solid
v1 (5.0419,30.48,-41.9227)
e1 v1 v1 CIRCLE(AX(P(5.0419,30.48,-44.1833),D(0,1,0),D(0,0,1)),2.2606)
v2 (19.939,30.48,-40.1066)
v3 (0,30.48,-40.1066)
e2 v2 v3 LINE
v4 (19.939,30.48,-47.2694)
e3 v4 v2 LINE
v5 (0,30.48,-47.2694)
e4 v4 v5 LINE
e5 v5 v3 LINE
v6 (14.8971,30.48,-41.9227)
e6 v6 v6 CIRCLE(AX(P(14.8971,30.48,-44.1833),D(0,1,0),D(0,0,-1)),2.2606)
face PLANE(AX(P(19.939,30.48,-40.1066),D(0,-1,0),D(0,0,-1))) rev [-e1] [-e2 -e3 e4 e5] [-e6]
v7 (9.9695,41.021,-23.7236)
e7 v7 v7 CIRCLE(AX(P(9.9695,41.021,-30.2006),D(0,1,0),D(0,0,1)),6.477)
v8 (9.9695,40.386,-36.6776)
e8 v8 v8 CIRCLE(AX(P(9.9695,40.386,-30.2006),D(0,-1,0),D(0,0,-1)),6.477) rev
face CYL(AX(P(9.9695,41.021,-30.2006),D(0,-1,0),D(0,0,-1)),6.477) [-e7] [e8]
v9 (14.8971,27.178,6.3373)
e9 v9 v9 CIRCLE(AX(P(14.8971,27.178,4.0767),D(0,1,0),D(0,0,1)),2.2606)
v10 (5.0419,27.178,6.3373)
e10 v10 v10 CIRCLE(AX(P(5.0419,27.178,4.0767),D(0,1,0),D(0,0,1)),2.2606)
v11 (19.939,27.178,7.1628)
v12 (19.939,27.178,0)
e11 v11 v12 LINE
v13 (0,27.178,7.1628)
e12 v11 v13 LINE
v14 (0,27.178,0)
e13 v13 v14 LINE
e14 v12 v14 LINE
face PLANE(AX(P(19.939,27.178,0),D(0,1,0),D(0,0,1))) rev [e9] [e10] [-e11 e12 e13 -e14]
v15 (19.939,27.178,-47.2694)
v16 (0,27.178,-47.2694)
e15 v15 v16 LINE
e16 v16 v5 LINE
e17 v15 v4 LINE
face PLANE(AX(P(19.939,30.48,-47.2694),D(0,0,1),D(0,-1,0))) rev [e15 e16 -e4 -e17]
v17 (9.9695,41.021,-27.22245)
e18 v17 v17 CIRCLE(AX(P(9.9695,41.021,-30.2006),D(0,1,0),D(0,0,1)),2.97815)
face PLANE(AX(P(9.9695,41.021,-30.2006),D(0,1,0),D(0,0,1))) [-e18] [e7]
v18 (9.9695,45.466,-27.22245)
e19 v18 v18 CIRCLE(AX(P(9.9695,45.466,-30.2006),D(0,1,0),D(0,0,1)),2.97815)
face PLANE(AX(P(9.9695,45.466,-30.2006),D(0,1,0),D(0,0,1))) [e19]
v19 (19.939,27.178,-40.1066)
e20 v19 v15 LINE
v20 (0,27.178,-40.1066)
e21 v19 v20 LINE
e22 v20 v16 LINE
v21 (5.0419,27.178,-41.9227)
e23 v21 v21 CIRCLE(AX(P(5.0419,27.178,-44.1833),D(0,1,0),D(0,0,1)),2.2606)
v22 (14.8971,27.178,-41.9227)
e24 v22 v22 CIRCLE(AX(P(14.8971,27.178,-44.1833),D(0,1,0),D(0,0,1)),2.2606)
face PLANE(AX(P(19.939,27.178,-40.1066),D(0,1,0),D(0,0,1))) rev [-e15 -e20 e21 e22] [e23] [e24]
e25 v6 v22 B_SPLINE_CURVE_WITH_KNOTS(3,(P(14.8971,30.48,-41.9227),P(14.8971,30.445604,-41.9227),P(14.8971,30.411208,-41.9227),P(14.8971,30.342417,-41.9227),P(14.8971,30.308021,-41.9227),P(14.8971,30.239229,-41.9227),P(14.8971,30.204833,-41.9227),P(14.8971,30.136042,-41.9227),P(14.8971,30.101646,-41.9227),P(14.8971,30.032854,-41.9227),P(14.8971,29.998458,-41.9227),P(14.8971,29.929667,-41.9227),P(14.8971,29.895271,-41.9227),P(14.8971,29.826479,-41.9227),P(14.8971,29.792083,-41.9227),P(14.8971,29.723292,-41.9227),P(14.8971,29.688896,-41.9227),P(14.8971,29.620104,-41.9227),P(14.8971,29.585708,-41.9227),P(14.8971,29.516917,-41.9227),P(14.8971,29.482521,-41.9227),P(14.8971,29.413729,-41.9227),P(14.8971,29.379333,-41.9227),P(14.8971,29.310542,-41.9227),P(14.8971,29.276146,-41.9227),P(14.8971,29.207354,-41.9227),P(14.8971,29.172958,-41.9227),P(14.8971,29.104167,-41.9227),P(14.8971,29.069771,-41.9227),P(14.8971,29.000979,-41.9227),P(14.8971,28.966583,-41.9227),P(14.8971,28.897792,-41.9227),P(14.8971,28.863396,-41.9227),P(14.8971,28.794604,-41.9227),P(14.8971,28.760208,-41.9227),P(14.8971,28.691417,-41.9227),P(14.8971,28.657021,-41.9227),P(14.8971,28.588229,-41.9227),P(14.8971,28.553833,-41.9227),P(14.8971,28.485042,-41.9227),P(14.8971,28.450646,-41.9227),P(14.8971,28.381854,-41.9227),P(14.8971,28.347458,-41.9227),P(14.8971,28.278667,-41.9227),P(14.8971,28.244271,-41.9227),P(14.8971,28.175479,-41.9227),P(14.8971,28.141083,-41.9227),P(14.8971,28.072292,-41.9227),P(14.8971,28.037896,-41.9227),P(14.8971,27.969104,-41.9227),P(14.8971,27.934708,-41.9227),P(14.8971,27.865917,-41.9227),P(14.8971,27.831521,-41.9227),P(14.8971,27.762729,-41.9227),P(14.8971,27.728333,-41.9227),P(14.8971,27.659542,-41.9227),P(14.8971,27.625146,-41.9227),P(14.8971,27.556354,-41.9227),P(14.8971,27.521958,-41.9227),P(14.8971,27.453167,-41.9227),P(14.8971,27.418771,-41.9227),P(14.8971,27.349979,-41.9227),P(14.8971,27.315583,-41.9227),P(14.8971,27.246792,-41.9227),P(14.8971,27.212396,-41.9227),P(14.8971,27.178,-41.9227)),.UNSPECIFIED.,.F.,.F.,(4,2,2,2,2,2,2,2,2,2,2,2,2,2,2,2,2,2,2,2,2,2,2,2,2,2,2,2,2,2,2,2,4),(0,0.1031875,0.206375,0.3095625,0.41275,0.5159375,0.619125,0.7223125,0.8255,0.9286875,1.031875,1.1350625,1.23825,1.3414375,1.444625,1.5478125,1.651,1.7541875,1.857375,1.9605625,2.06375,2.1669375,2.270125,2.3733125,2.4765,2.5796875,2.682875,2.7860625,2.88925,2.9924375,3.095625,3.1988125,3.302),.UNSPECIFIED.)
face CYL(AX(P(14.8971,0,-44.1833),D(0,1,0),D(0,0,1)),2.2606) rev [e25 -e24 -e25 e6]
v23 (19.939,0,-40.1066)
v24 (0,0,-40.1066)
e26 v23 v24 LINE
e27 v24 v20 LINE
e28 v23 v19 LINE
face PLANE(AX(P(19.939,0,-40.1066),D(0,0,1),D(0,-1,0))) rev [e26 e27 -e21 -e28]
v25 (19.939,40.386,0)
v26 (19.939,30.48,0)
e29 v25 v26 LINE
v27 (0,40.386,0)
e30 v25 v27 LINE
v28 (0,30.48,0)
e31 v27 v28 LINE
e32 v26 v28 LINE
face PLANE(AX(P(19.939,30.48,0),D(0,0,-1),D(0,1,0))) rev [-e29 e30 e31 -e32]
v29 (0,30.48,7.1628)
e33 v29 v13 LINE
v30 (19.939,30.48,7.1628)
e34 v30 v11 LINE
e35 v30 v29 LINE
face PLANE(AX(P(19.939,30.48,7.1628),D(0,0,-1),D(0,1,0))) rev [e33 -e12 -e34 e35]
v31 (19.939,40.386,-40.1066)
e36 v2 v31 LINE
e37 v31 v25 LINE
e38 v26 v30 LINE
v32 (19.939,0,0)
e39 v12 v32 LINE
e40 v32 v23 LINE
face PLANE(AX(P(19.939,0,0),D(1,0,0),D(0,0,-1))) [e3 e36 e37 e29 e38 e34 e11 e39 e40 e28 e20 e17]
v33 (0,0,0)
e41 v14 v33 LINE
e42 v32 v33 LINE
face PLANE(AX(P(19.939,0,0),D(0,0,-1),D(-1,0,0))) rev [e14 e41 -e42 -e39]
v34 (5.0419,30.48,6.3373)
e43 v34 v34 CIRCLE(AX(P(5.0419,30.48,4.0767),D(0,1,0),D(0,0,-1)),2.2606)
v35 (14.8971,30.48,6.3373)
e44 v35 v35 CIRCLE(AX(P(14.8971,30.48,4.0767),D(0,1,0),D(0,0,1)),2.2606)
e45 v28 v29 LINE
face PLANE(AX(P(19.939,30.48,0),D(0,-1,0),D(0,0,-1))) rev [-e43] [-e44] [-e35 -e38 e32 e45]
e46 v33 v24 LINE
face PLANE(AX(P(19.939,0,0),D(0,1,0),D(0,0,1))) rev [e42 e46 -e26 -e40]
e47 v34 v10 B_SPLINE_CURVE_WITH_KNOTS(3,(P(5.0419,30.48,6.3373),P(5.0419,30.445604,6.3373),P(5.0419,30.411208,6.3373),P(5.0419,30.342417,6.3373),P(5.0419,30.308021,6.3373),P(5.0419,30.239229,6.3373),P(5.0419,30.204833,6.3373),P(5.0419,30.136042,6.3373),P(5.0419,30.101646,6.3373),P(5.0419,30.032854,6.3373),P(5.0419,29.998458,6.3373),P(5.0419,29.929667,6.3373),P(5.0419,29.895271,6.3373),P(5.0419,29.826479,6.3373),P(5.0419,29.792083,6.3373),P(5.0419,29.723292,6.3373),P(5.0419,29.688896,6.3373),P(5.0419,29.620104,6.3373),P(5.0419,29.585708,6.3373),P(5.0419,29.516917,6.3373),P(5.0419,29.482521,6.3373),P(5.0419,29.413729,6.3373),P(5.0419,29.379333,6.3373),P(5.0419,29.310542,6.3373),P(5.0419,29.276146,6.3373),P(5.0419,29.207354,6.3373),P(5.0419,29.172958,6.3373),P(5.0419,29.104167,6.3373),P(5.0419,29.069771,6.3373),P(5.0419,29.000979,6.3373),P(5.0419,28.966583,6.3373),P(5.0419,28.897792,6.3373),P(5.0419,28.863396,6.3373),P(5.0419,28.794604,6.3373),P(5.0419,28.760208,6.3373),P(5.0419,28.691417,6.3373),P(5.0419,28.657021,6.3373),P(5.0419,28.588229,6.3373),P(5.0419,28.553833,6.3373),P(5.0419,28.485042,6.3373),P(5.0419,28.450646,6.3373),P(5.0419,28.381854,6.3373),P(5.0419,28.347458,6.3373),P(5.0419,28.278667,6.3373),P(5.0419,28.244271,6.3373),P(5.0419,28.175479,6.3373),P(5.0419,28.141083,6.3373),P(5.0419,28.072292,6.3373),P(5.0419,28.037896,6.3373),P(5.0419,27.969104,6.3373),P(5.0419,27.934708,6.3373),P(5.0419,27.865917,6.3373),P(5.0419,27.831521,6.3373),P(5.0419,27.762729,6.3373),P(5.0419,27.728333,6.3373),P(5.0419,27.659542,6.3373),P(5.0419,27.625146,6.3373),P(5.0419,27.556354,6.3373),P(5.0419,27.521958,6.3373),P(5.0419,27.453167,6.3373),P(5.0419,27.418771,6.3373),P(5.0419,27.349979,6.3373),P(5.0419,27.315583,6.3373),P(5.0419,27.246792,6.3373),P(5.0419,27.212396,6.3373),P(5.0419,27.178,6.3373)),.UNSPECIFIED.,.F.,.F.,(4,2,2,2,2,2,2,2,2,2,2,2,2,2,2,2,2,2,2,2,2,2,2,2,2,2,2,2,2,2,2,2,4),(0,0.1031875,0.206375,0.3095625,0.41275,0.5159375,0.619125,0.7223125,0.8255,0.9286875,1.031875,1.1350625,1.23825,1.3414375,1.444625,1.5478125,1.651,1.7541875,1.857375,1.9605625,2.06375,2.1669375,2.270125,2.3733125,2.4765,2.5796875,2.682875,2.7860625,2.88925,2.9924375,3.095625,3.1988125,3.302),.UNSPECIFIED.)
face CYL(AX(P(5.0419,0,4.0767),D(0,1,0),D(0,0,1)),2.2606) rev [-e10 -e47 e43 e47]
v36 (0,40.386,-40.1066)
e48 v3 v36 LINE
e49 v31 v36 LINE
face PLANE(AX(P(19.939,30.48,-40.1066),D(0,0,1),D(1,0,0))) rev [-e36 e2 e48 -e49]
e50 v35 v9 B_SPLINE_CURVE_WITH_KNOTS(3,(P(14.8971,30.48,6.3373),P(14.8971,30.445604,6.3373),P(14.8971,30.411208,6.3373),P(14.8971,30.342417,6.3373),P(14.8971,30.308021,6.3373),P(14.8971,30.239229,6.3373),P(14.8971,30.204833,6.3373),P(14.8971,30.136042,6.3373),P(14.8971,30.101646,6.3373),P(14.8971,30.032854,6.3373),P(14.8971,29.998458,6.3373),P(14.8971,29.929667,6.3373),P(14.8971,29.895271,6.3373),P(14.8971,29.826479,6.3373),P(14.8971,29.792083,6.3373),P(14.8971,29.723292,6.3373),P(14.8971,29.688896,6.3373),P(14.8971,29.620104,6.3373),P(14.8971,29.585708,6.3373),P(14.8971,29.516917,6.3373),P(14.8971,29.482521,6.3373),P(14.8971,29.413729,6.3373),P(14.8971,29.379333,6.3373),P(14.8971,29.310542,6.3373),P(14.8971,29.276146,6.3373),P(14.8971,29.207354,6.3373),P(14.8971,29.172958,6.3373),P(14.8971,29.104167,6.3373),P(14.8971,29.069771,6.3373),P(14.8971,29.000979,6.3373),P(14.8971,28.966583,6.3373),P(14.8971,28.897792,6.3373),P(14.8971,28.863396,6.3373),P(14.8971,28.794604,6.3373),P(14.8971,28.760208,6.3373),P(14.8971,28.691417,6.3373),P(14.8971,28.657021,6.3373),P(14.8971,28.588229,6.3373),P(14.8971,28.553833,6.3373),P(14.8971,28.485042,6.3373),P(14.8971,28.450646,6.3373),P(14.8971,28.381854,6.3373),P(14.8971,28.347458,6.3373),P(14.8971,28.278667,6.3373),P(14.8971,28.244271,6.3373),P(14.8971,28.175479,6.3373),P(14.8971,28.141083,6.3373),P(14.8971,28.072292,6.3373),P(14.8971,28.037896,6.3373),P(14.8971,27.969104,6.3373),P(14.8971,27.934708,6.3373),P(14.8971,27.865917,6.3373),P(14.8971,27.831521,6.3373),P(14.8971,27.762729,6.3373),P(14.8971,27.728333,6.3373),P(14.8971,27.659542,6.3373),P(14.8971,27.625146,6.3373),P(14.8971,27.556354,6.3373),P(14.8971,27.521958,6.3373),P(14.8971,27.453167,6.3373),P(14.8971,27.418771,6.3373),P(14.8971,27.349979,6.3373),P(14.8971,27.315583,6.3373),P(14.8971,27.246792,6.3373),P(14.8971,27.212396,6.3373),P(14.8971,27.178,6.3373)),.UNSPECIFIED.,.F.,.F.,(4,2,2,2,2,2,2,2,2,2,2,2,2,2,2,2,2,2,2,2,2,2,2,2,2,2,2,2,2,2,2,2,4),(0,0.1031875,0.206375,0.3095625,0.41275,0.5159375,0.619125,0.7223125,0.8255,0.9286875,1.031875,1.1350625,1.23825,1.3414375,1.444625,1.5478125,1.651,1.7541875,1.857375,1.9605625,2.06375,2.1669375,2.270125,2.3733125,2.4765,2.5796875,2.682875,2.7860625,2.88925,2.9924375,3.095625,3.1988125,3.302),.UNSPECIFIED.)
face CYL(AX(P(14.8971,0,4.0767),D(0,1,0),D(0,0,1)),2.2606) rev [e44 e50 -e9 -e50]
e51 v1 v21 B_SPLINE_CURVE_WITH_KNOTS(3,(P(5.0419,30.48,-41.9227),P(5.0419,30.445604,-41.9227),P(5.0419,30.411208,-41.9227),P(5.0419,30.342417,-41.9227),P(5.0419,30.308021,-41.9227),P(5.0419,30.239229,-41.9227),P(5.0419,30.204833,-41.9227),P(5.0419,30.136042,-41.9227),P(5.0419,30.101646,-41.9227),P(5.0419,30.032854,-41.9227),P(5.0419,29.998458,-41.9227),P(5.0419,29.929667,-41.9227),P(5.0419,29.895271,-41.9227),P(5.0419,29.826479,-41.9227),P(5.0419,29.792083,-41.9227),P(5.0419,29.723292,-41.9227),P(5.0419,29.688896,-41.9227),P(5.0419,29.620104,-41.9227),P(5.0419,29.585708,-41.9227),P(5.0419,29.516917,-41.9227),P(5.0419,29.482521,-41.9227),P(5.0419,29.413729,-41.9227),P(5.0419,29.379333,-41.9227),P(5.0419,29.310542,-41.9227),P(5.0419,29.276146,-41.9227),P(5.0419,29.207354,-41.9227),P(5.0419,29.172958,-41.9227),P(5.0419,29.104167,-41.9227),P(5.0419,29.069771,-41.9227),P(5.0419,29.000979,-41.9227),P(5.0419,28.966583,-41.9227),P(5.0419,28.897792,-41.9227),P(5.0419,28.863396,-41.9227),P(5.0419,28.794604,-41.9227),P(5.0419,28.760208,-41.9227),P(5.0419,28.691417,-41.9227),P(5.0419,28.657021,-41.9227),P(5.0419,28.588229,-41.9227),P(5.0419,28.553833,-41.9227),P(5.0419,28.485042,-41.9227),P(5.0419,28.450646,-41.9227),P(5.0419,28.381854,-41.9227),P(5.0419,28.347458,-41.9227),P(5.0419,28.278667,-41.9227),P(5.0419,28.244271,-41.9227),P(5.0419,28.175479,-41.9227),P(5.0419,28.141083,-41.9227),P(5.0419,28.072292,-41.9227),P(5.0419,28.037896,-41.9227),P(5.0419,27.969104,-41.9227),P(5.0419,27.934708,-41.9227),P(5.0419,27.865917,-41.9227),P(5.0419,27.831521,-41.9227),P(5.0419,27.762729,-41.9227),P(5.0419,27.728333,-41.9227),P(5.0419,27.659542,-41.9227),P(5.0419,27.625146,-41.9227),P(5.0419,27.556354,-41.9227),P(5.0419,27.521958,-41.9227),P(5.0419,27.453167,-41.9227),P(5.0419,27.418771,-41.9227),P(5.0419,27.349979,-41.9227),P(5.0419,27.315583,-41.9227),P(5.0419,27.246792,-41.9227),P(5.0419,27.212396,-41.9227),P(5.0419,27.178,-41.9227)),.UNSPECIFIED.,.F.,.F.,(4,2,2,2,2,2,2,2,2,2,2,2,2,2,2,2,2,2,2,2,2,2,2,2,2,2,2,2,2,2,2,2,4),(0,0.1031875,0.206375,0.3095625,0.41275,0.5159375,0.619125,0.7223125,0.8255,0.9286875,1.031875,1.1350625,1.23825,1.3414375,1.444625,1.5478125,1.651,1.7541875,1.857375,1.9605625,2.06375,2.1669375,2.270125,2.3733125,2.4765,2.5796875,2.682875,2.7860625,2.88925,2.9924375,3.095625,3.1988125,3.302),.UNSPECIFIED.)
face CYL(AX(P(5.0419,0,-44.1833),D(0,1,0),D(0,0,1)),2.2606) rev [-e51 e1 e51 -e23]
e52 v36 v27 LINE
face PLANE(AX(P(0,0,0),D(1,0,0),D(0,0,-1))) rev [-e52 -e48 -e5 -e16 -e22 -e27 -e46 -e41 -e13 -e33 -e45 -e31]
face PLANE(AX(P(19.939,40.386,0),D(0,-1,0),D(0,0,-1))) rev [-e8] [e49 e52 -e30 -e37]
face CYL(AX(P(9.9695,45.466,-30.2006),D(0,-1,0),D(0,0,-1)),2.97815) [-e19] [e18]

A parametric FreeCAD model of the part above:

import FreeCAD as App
import Part
import Sketcher
from FreeCAD import Vector
Q = App.Units.Quantity

doc = App.newDocument("Part")
body = doc.addObject("PartDesign::Body", "Body")

sketch1 = body.newObject("Sketcher::SketchObject", "Sketch")
sketch1.AttachmentSupport = (doc.getObject("YZ_Plane"), [""])
sketch1.MapMode = "FlatFace"
sketch1.addGeometry([
    Part.LineSegment(Vector(0, 0, 0), Vector(0, -40.1, 0)),
    Part.LineSegment(Vector(0, -40.1, 0), Vector(27.2, -40.1, 0)),
    Part.LineSegment(Vector(27.2, -40.1, 0), Vector(27.2, -47.3, 0)),
    Part.LineSegment(Vector(27.2, -47.3, 0), Vector(30.5, -47.3, 0)),
    Part.LineSegment(Vector(30.5, -47.3, 0), Vector(30.5, -40.1, 0)),
    Part.LineSegment(Vector(30.5, -40.1, 0), Vector(40.4, -40.1, 0)),
    Part.LineSegment(Vector(40.4, -40.1, 0), Vector(40.4, 0, 0)),
    Part.LineSegment(Vector(40.4, 0, 0), Vector(30.5, 0, 0)),
    Part.LineSegment(Vector(30.5, 0, 0), Vector(30.5, 7.2, 0)),
    Part.LineSegment(Vector(30.5, 7.2, 0), Vector(27.2, 7.2, 0)),
    Part.LineSegment(Vector(27.2, 7.2, 0), Vector(27.2, 0, 0)),
    Part.LineSegment(Vector(27.2, 0, 0), Vector(0, 0, 0)),
], False)
sketch1.addConstraint([
    Sketcher.Constraint("Coincident", 0, 2, 1, 1),
    Sketcher.Constraint("Coincident", 1, 2, 2, 1),
    Sketcher.Constraint("Coincident", 2, 2, 3, 1),
    Sketcher.Constraint("Coincident", 3, 2, 4, 1),
    Sketcher.Constraint("Coincident", 4, 2, 5, 1),
    Sketcher.Constraint("Coincident", 5, 2, 6, 1),
    Sketcher.Constraint("Coincident", 6, 2, 7, 1),
    Sketcher.Constraint("Coincident", 7, 2, 8, 1),
    Sketcher.Constraint("Coincident", 8, 2, 9, 1),
    Sketcher.Constraint("Coincident", 9, 2, 10, 1),
    Sketcher.Constraint("Coincident", 10, 2, 11, 1),
    Sketcher.Constraint("Coincident", 11, 2, 0, 1),
    Sketcher.Constraint("Vertical", 0),
    Sketcher.Constraint("Horizontal", 1),
    Sketcher.Constraint("Vertical", 2),
    Sketcher.Constraint("Horizontal", 3),
    Sketcher.Constraint("Vertical", 4),
    Sketcher.Constraint("Horizontal", 5),
    Sketcher.Constraint("Vertical", 6),
    Sketcher.Constraint("Horizontal", 7),
    Sketcher.Constraint("Vertical", 8),
    Sketcher.Constraint("Horizontal", 9),
    Sketcher.Constraint("Vertical", 10),
    Sketcher.Constraint("Horizontal", 11),
    Sketcher.Constraint("Coincident", 11, 2, -1, 1),
    Sketcher.Constraint("PointOnObject", 6, 2, -1),
    Sketcher.Constraint("Horizontal", 1, 2, 4, 2),
    Sketcher.Constraint("Vertical", 4, 2, 7, 2),
    Sketcher.Constraint("Vertical", 2, 2, 9, 2),
    Sketcher.Constraint("Equal", 4, 8),
    Sketcher.Constraint("DistanceX", 1, 1, 1, 2, Q("1.07 in")),
    Sketcher.Constraint("DistanceX", 3, 1, 3, 2, Q("0.13 in")),
    Sketcher.Constraint("DistanceX", 5, 1, 5, 2, Q("0.39 in")),
    Sketcher.Constraint("DistanceY", 0, 2, 0, 1, Q("1.579 in")),
    Sketcher.Constraint("DistanceY", 2, 2, 2, 1, Q("0.282 in")),
])
pad1 = body.newObject("PartDesign::Pad", "Pad")
pad1.Profile = sketch1
pad1.Length = Q("0.785 in")

sketch2 = body.newObject("Sketcher::SketchObject", "Sketch001")
sketch2.AttachmentSupport = (doc.getObject("XZ_Plane"), [""])
sketch2.MapMode = "FlatFace"
sketch2.AttachmentOffset = App.Placement(Vector(0, 0, -1.59 * 25.4), App.Rotation())
sketch2.addGeometry(Part.Circle(Vector(10, -30.2, 0), Vector(0, 0, 1), 3), False)
sketch2.addConstraint([
    Sketcher.Constraint("Diameter", 0, Q("0.2345 in")),
    Sketcher.Constraint("DistanceY", 0, 3, -1, 1, Q("1.189 in")),
    Sketcher.Constraint("DistanceX", -1, 1, 0, 3, Q("0.3925 in")),
])
pad2 = body.newObject("PartDesign::Pad", "Pad001")
pad2.Profile = sketch2
pad2.Length = Q("0.2 in")
pad2.Reversed = True

sketch3 = body.newObject("Sketcher::SketchObject", "Sketch002")
sketch3.AttachmentSupport = (doc.getObject("XZ_Plane"), [""])
sketch3.MapMode = "FlatFace"
sketch3.AttachmentOffset = App.Placement(Vector(0, 0, -1.59 * 25.4), App.Rotation())
sketch3.addGeometry(Part.Circle(Vector(10, -30, 0), Vector(0, 0, 1), 6), False)
sketch3.addConstraint([
    Sketcher.Constraint("Diameter", 0, Q("0.51 in")),
    Sketcher.Constraint("DistanceY", 0, 3, -1, 1, Q("1.189 in")),
    Sketcher.Constraint("DistanceX", -1, 1, 0, 3, Q("0.3925 in")),
])
pad3 = body.newObject("PartDesign::Pad", "Pad002")
pad3.Profile = sketch3
pad3.Length = Q("0.025 in")
pad3.Reversed = True

sketch4 = body.newObject("Sketcher::SketchObject", "Sketch003")
sketch4.AttachmentSupport = (doc.getObject("XZ_Plane"), [""])
sketch4.MapMode = "FlatFace"
sketch4.AttachmentOffset = App.Placement(Vector(0, 0, -1.2 * 25.4), App.Rotation())
sketch4.addGeometry([
    Part.Circle(Vector(5, -44.2, 0), Vector(0, 0, 1), 2.3),
    Part.Circle(Vector(14.9, -44.2, 0), Vector(0, 0, 1), 2.3),
    Part.Circle(Vector(14.9, 4.1, 0), Vector(0, 0, 1), 2.3),
    Part.Circle(Vector(5, 4.1, 0), Vector(0, 0, 1), 2.3),
], False)
sketch4.addConstraint([
    Sketcher.Constraint("Equal", 0, 1),
    Sketcher.Constraint("Equal", 1, 2),
    Sketcher.Constraint("Equal", 2, 3),
    Sketcher.Constraint("Horizontal", 0, 3, 1, 3),
    Sketcher.Constraint("Horizontal", 2, 3, 3, 3),
    Sketcher.Constraint("Vertical", 1, 3, 2, 3),
    Sketcher.Constraint("Vertical", 0, 3, 3, 3),
    Sketcher.Constraint("Diameter", 0, Q("0.178 in")),
    Sketcher.Constraint("DistanceY", 1, 3, 2, 3, Q("1.9 in")),
    Sketcher.Constraint("DistanceX", 0, 3, 1, 3, Q("0.388 in")),
    Sketcher.Constraint("DistanceX", -1, 1, 0, 3, Q("0.1985 in")),
    Sketcher.Constraint("DistanceY", 0, 3, -1, 1, Q("1.7395 in")),
])
pocket1 = body.newObject("PartDesign::Pocket", "Pocket")
pocket1.Profile = sketch4
pocket1.Type = "ThroughAll"
pocket1.Reversed = True

doc.recompute()
